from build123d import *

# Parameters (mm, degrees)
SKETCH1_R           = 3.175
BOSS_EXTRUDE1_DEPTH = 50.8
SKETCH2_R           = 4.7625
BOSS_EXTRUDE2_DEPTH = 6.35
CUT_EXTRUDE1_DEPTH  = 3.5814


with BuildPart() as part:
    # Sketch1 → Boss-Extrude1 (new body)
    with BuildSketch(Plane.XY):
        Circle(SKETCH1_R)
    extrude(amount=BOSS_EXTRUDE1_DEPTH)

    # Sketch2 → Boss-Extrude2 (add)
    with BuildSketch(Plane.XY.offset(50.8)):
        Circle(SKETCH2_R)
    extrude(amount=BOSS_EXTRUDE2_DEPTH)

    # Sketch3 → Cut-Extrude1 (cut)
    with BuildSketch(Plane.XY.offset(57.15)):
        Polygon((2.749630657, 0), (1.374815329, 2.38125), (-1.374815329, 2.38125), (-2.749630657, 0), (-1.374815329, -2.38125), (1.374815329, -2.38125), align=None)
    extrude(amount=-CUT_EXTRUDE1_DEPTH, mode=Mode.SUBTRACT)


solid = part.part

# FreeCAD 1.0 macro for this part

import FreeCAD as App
import Part
import Sketcher
from FreeCAD import Vector
Q = App.Units.Quantity

doc = App.newDocument("Part")
body = doc.addObject("PartDesign::Body", "Body")

# Sketch on XY plane
sketch1 = doc.addObject("Sketcher::SketchObject", "Sketch")
body.addObject(sketch1)
sketch1.AttachmentSupport = (doc.XY_Plane, [""])
sketch1.MapMode = "FlatFace"
sketch1.addGeometry(Part.Circle(Vector(0, 0, 0), Vector(0, 0, 1), 3.2), False)
sketch1.addConstraint(Sketcher.Constraint("Coincident", 0, 3, -1, 1))
sketch1.addConstraint(Sketcher.Constraint("Diameter", 0, Q("0.25 in")))
pad1 = doc.addObject("PartDesign::Pad", "Pad")
body.addObject(pad1)
pad1.Profile = sketch1
pad1.Length = Q("2 in")

# Sketch on XY plane
sketch2 = doc.addObject("Sketcher::SketchObject", "Sketch001")
body.addObject(sketch2)
sketch2.AttachmentSupport = (doc.XY_Plane, [""])
sketch2.MapMode = "FlatFace"
sketch2.AttachmentOffset = App.Placement(Vector(0, 0, 2 * 25.4), App.Rotation())
sketch2.addGeometry(Part.Circle(Vector(0, 0, 0), Vector(0, 0, 1), 4.8), False)
sketch2.addConstraint(Sketcher.Constraint("Coincident", 0, 3, -1, 1))
sketch2.addConstraint(Sketcher.Constraint("Diameter", 0, Q("0.375 in")))
pad2 = doc.addObject("PartDesign::Pad", "Pad001")
body.addObject(pad2)
pad2.Profile = sketch2
pad2.Length = Q("0.25 in")

# Sketch on XY plane
sketch3 = doc.addObject("Sketcher::SketchObject", "Sketch002")
body.addObject(sketch3)
sketch3.AttachmentSupport = (doc.XY_Plane, [""])
sketch3.MapMode = "FlatFace"
sketch3.AttachmentOffset = App.Placement(Vector(0, 0, 2.25 * 25.4), App.Rotation())
sketch3.addGeometry(Part.LineSegment(Vector(2.7, 0, 0), Vector(1.4, 2.4, 0)), False)
sketch3.addGeometry(Part.LineSegment(Vector(1.4, 2.4, 0), Vector(-1.4, 2.4, 0)), False)
sketch3.addGeometry(Part.LineSegment(Vector(-1.4, 2.4, 0), Vector(-2.7, 0, 0)), False)
sketch3.addGeometry(Part.LineSegment(Vector(-2.7, 0, 0), Vector(-1.4, -2.4, 0)), False)
sketch3.addGeometry(Part.LineSegment(Vector(-1.4, -2.4, 0), Vector(1.4, -2.4, 0)), False)
sketch3.addGeometry(Part.LineSegment(Vector(1.4, -2.4, 0), Vector(2.7, 0, 0)), False)
sketch3.addConstraint(Sketcher.Constraint("Coincident", 0, 2, 1, 1))
sketch3.addConstraint(Sketcher.Constraint("Coincident", 1, 2, 2, 1))
sketch3.addConstraint(Sketcher.Constraint("Coincident", 2, 2, 3, 1))
sketch3.addConstraint(Sketcher.Constraint("Coincident", 3, 2, 4, 1))
sketch3.addConstraint(Sketcher.Constraint("Coincident", 4, 2, 5, 1))
sketch3.addConstraint(Sketcher.Constraint("Coincident", 5, 2, 0, 1))
sketch3.addConstraint(Sketcher.Constraint("Horizontal", 1))
sketch3.addConstraint(Sketcher.Constraint("Horizontal", 4))
sketch3.addConstraint(Sketcher.Constraint("Symmetric", 0, 2, 3, 2, -1, 1))
sketch3.addConstraint(Sketcher.Constraint("Symmetric", 2, 2, 5, 2, -1, 1))
sketch3.addConstraint(Sketcher.Constraint("PointOnObject", 2, 2, -1))
sketch3.addConstraint(Sketcher.Constraint("Parallel", 2, 5))
sketch3.addConstraint(Sketcher.Constraint("Vertical", 1, 2, 3, 2))
sketch3.addConstraint(Sketcher.Constraint("Angle", 0, Q("120 deg")))
sketch3.addConstraint(Sketcher.Constraint("DistanceY", -1, 1, 0, 2, Q("0.09375 in")))
sketch3.addConstraint(Sketcher.Constraint("DistanceX", 1, 2, 1, 1, Q("2.749631 mm")))
pocket1 = doc.addObject("PartDesign::Pocket", "Pocket")
body.addObject(pocket1)
pocket1.Profile = sketch3
pocket1.Length = Q("0.141 in")

doc.recompute()
